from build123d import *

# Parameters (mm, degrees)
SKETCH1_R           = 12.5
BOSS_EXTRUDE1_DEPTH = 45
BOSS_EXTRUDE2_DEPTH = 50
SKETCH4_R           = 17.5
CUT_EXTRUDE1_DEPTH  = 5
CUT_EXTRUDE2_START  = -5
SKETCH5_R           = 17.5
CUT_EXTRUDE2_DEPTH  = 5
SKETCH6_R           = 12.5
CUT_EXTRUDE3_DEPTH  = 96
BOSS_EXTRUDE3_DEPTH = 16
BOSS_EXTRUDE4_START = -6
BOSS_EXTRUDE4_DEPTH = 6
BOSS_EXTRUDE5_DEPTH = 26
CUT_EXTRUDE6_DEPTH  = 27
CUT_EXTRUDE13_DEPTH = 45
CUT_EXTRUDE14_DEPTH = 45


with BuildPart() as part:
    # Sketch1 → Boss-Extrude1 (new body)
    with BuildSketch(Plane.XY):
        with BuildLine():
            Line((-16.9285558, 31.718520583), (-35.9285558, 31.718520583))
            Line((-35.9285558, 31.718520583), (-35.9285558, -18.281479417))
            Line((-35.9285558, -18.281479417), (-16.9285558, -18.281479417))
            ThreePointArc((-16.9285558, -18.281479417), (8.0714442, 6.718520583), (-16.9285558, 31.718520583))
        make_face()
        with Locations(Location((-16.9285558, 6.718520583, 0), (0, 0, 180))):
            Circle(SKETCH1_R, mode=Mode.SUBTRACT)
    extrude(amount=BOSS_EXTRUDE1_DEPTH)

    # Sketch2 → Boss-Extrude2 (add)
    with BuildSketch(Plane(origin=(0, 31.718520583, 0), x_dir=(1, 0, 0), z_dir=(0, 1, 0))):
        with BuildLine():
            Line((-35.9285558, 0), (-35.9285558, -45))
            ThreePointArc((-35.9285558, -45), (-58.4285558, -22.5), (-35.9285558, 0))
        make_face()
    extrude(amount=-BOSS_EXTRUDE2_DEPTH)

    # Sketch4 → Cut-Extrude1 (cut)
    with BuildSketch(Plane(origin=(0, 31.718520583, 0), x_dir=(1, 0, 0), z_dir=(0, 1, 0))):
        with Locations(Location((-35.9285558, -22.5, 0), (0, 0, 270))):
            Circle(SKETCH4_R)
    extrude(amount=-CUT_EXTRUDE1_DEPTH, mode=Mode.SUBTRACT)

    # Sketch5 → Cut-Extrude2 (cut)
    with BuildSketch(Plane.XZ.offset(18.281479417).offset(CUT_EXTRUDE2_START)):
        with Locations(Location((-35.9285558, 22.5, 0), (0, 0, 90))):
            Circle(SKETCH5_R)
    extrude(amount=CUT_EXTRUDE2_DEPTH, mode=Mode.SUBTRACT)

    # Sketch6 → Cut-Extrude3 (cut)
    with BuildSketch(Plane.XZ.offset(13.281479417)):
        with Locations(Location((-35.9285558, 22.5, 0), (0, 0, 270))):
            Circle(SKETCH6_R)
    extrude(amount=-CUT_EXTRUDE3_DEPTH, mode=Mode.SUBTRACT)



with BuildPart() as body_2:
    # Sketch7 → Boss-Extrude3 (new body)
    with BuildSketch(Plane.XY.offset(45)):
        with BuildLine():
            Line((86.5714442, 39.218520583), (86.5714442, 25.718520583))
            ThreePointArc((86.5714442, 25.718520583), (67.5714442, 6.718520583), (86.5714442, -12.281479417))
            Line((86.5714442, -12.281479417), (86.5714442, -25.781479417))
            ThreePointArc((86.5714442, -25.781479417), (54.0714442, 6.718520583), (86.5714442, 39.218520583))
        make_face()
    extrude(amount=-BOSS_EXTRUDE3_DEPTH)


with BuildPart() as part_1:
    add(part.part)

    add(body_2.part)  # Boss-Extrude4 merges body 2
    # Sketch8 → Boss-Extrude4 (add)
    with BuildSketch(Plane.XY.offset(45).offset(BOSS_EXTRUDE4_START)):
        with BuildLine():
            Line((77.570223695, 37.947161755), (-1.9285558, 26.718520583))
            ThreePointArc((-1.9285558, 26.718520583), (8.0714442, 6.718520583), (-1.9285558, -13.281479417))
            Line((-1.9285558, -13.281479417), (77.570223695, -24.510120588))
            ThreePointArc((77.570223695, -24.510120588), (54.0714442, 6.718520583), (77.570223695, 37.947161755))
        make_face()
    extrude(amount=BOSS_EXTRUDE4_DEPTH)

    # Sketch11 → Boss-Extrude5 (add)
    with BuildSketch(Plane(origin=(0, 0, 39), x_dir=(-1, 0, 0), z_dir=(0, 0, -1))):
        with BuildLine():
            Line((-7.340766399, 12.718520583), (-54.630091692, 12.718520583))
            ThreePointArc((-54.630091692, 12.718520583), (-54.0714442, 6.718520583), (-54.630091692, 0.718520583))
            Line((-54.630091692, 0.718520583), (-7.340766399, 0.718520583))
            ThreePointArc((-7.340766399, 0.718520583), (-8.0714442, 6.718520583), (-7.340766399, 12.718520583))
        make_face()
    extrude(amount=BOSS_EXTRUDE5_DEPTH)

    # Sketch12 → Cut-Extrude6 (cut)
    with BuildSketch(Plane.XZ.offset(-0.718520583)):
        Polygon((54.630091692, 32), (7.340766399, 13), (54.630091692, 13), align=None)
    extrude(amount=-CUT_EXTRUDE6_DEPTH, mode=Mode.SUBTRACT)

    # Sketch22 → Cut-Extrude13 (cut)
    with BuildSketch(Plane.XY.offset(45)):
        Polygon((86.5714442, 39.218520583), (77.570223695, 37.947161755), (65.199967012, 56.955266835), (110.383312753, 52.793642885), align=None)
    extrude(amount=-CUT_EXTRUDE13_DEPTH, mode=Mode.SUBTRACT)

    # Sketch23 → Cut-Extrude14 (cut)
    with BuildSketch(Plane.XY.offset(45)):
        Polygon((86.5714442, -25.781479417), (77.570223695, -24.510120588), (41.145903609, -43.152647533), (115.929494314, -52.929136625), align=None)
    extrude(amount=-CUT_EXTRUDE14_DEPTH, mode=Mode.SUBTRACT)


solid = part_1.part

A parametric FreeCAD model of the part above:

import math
import FreeCAD as App
import Part
import Sketcher
from FreeCAD import Vector


def add_polygon(sketch, points):
    """Adds a closed chain of lines whose ends are joined by coincident constraints."""
    first, n = sketch.GeometryCount, len(points)
    for a, b in zip(points, points[1:] + points[:1]):
        sketch.addGeometry(Part.LineSegment(App.Vector(*a, 0), App.Vector(*b, 0)), False)
    for i in range(n):
        sketch.addConstraint(Sketcher.Constraint("Coincident", first + i, 2, first + (i + 1) % n, 1))

doc = App.newDocument("Part")
params = doc.addObject("Spreadsheet::Sheet", "Params")
for row, (alias, value) in enumerate([
    ("sketch1_diameter", "25 mm"),
    ("sketch1_radius", "25 mm"),
    ("sketch1_width", "19 mm"),
    ("pad1_length", "45 mm"),
    ("sketch2_radius", "22.5 mm"),
    ("pad2_length", "50 mm"),
    ("sketch3_diameter", "35 mm"),
    ("pocket1_length", "5 mm"),
    ("sketch4_diameter", "35 mm"),
    ("pocket2_length", "5 mm"),
    ("sketch5_diameter", "25 mm"),
    ("pocket3_length", "96 mm"),
    ("sketch6_radius", "19 mm"),
    ("sketch6_radius2", "32.5 mm"),
    ("pad3_length", "16 mm"),
    ("sketch7_radius", "25 mm"),
    ("sketch7_radius2", "32.5 mm"),
    ("pad4_length", "6 mm"),
    ("sketch8_radius", "25 mm"),
    ("sketch8_radius2", "32.5 mm"),
    ("pad5_length", "26 mm"),
    ("sketch9_height", "19 mm"),
    ("pocket4_length", "27 mm"),
    ("pocket5_length", "45 mm"),
    ("pocket6_length", "45 mm"),
], start=1):
    params.set(f"A{row}", alias)
    params.set(f"B{row}", "=" + value)
    params.setAlias(f"B{row}", alias)

body = doc.addObject("PartDesign::Body", "Body")

# Sketch on XY plane
sketch1 = body.newObject("Sketcher::SketchObject", "Sketch")
sketch1.AttachmentSupport = (doc.getObject("XY_Plane"), [""])
sketch1.MapMode = "FlatFace"
sketch1.addGeometry(Part.LineSegment(Vector(-17, 32, 0), Vector(-36, 32, 0)), False)
sketch1.addGeometry(Part.LineSegment(Vector(-36, 32, 0), Vector(-36, -18, 0)), False)
sketch1.addGeometry(Part.LineSegment(Vector(-36, -18, 0), Vector(-17, -18, 0)), False)
sketch1.addGeometry(Part.ArcOfCircle(Part.Circle(Vector(-17, 7, 0), Vector(0, 0, 1), 25), math.radians(-90), math.radians(90)), False)
sketch1.addGeometry(Part.Circle(Vector(-17, 7, 0), Vector(0, 0, 1), 12), False)
sketch1.addConstraint(Sketcher.Constraint("Coincident", 0, 2, 1, 1))
sketch1.addConstraint(Sketcher.Constraint("Coincident", 1, 2, 2, 1))
sketch1.addConstraint(Sketcher.Constraint("Tangent", 2, 2, 3, 1))
sketch1.addConstraint(Sketcher.Constraint("Tangent", 3, 2, 0, 1))
sketch1.addConstraint(Sketcher.Constraint("Horizontal", 0))
sketch1.addConstraint(Sketcher.Constraint("Vertical", 1))
sketch1.addConstraint(Sketcher.Constraint("Horizontal", 2))
sketch1.addConstraint(Sketcher.Constraint("Coincident", 4, 3, 3, 3))
sketch1.addConstraint(Sketcher.Constraint("Diameter", 4, 25.0))
sketch1.addConstraint(Sketcher.Constraint("Radius", 3, 25.0))
sketch1.addConstraint(Sketcher.Constraint("DistanceX", 0, 2, 0, 1, 19.0))
sketch1.addConstraint(Sketcher.Constraint("DistanceY", -1, 1, 3, 3, 6.718521))
sketch1.addConstraint(Sketcher.Constraint("DistanceX", 3, 3, -1, 1, 16.928556))
sketch1.setExpression("Constraints[8]", "Params.sketch1_diameter")
sketch1.setExpression("Constraints[9]", "Params.sketch1_radius")
sketch1.setExpression("Constraints[10]", "Params.sketch1_width")
pad1 = body.newObject("PartDesign::Pad", "Pad")
pad1.Profile = sketch1
pad1.setExpression("Length", "Params.pad1_length")

# Sketch on XZ plane
sketch2 = body.newObject("Sketcher::SketchObject", "Sketch001")
sketch2.AttachmentSupport = (doc.getObject("XZ_Plane"), [""])
sketch2.MapMode = "FlatFace"
sketch2.AttachmentOffset = App.Placement(Vector(0, 0, -31.718521), App.Rotation())
sketch2.addGeometry(Part.LineSegment(Vector(-36, 45, 0), Vector(-36, 0, 0)), False)
sketch2.addGeometry(Part.ArcOfCircle(Part.Circle(Vector(-36, 22, 0), Vector(0, 0, 1), 22), math.radians(90), math.radians(270)), False)
sketch2.addConstraint(Sketcher.Constraint("Coincident", 0, 1, 1, 1))
sketch2.addConstraint(Sketcher.Constraint("Coincident", 1, 2, 0, 2))
sketch2.addConstraint(Sketcher.Constraint("Vertical", 0))
sketch2.addConstraint(Sketcher.Constraint("PointOnObject", 1, 2, -1))
sketch2.addConstraint(Sketcher.Constraint("Vertical", 1, 3, 0, 1))
sketch2.addConstraint(Sketcher.Constraint("Radius", 1, 22.5))
sketch2.addConstraint(Sketcher.Constraint("DistanceX", 1, 3, -1, 1, 35.928556))
sketch2.setExpression("Constraints[5]", "Params.sketch2_radius")
pad2 = body.newObject("PartDesign::Pad", "Pad001")
pad2.Profile = sketch2
pad2.setExpression("Length", "Params.pad2_length")

# Sketch on XZ plane
sketch3 = body.newObject("Sketcher::SketchObject", "Sketch002")
sketch3.AttachmentSupport = (doc.getObject("XZ_Plane"), [""])
sketch3.MapMode = "FlatFace"
sketch3.AttachmentOffset = App.Placement(Vector(0, 0, -31.718521), App.Rotation())
sketch3.addGeometry(Part.Circle(Vector(-36, 22, 0), Vector(0, 0, 1), 18), False)
sketch3.addConstraint(Sketcher.Constraint("Diameter", 0, 35.0))
sketch3.addConstraint(Sketcher.Constraint("DistanceY", -1, 1, 0, 3, 22.5))
sketch3.addConstraint(Sketcher.Constraint("DistanceX", 0, 3, -1, 1, 35.928556))
sketch3.setExpression("Constraints[0]", "Params.sketch3_diameter")
pocket1 = body.newObject("PartDesign::Pocket", "Pocket")
pocket1.Profile = sketch3
pocket1.setExpression("Length", "Params.pocket1_length")
pocket1.Reversed = True

# Sketch on XZ plane
sketch4 = body.newObject("Sketcher::SketchObject", "Sketch003")
sketch4.AttachmentSupport = (doc.getObject("XZ_Plane"), [""])
sketch4.MapMode = "FlatFace"
sketch4.AttachmentOffset = App.Placement(Vector(0, 0, 13.281479), App.Rotation())
sketch4.addGeometry(Part.Circle(Vector(-36, 22, 0), Vector(0, 0, 1), 18), False)
sketch4.addConstraint(Sketcher.Constraint("Diameter", 0, 35.0))
sketch4.addConstraint(Sketcher.Constraint("DistanceY", -1, 1, 0, 3, 22.5))
sketch4.addConstraint(Sketcher.Constraint("DistanceX", 0, 3, -1, 1, 35.928556))
sketch4.setExpression("Constraints[0]", "Params.sketch4_diameter")
pocket2 = body.newObject("PartDesign::Pocket", "Pocket001")
pocket2.Profile = sketch4
pocket2.setExpression("Length", "Params.pocket2_length")
pocket2.Reversed = True

# Sketch on XZ plane
sketch5 = body.newObject("Sketcher::SketchObject", "Sketch004")
sketch5.AttachmentSupport = (doc.getObject("XZ_Plane"), [""])
sketch5.MapMode = "FlatFace"
sketch5.AttachmentOffset = App.Placement(Vector(0, 0, 13.281479), App.Rotation())
sketch5.addGeometry(Part.Circle(Vector(-36, 22, 0), Vector(0, 0, 1), 12), False)
sketch5.addConstraint(Sketcher.Constraint("Diameter", 0, 25.0))
sketch5.addConstraint(Sketcher.Constraint("DistanceY", -1, 1, 0, 3, 22.5))
sketch5.addConstraint(Sketcher.Constraint("DistanceX", 0, 3, -1, 1, 35.928556))
sketch5.setExpression("Constraints[0]", "Params.sketch5_diameter")
pocket3 = body.newObject("PartDesign::Pocket", "Pocket002")
pocket3.Profile = sketch5
pocket3.setExpression("Length", "Params.pocket3_length")
body2 = doc.addObject("PartDesign::Body", "Body001")

# Sketch on XY plane
sketch6 = body2.newObject("Sketcher::SketchObject", "Sketch005")
sketch6.AttachmentSupport = (doc.getObject("XY_Plane001"), [""])
sketch6.MapMode = "FlatFace"
sketch6.AttachmentOffset = App.Placement(Vector(0, 0, 45), App.Rotation())
sketch6.addGeometry(Part.LineSegment(Vector(87, 26, 0), Vector(87, 39, 0)), False)
sketch6.addGeometry(Part.ArcOfCircle(Part.Circle(Vector(87, 7, 0), Vector(0, 0, 1), 32), math.radians(90), math.radians(270)), False)
sketch6.addGeometry(Part.LineSegment(Vector(87, -26, 0), Vector(87, -12, 0)), False)
sketch6.addGeometry(Part.ArcOfCircle(Part.Circle(Vector(87, 7, 0), Vector(0, 0, 1), 19), math.radians(90), math.radians(270)), False)
sketch6.addConstraint(Sketcher.Constraint("Coincident", 0, 2, 1, 1))
sketch6.addConstraint(Sketcher.Constraint("Coincident", 1, 2, 2, 1))
sketch6.addConstraint(Sketcher.Constraint("Coincident", 2, 2, 3, 2))
sketch6.addConstraint(Sketcher.Constraint("Coincident", 3, 1, 0, 1))
sketch6.addConstraint(Sketcher.Constraint("Vertical", 0))
sketch6.addConstraint(Sketcher.Constraint("Vertical", 2))
sketch6.addConstraint(Sketcher.Constraint("Coincident", 3, 3, 1, 3))
sketch6.addConstraint(Sketcher.Constraint("Vertical", 3, 3, 0, 2))
sketch6.addConstraint(Sketcher.Constraint("Vertical", 0, 2, 1, 2))
sketch6.addConstraint(Sketcher.Constraint("Radius", 3, 19.0))
sketch6.addConstraint(Sketcher.Constraint("Radius", 1, 32.5))
sketch6.addConstraint(Sketcher.Constraint("DistanceY", -1, 1, 1, 3, 6.718521))
sketch6.addConstraint(Sketcher.Constraint("DistanceX", -1, 1, 1, 3, 86.571444))
sketch6.setExpression("Constraints[9]", "Params.sketch6_radius")
sketch6.setExpression("Constraints[10]", "Params.sketch6_radius2")
pad3 = body2.newObject("PartDesign::Pad", "Pad002")
pad3.Profile = sketch6
pad3.setExpression("Length", "Params.pad3_length")
pad3.Reversed = True
body.AllowCompound = True
doc.recompute()

boolean = body.newObject("PartDesign::Boolean", "Boolean")
boolean.Type = "Fuse"
boolean.addObjects([body2])

# Sketch on XY plane
sketch7 = body.newObject("Sketcher::SketchObject", "Sketch006")
sketch7.AttachmentSupport = (doc.getObject("XY_Plane"), [""])
sketch7.MapMode = "FlatFace"
sketch7.AttachmentOffset = App.Placement(Vector(0, 0, 39), App.Rotation())
sketch7.addGeometry(Part.LineSegment(Vector(78, 38, 0), Vector(-2, 27, 0)), False)
sketch7.addGeometry(Part.ArcOfCircle(Part.Circle(Vector(-17, 7, 0), Vector(0, 0, 1), 25), math.radians(-53), math.radians(53)), False)
sketch7.addGeometry(Part.LineSegment(Vector(-2, -13, 0), Vector(78, -25, 0)), False)
sketch7.addGeometry(Part.ArcOfCircle(Part.Circle(Vector(87, 7, 0), Vector(0, 0, 1), 32), math.radians(106), math.radians(254)), False)
sketch7.addConstraint(Sketcher.Constraint("Coincident", 0, 2, 1, 2))
sketch7.addConstraint(Sketcher.Constraint("Coincident", 1, 1, 2, 1))
sketch7.addConstraint(Sketcher.Constraint("Coincident", 2, 2, 3, 2))
sketch7.addConstraint(Sketcher.Constraint("Coincident", 3, 1, 0, 1))
sketch7.addConstraint(Sketcher.Constraint("Horizontal", 1, 3, 3, 3))
sketch7.addConstraint(Sketcher.Constraint("Vertical", 0, 2, 1, 1))
sketch7.addConstraint(Sketcher.Constraint("Vertical", 2, 2, 3, 1))
sketch7.addConstraint(Sketcher.Constraint("Radius", 1, 25.0))
sketch7.addConstraint(Sketcher.Constraint("Radius", 3, 32.5))
sketch7.addConstraint(Sketcher.Constraint("DistanceX", 1, 3, 0, 2, 15.0))
sketch7.addConstraint(Sketcher.Constraint("DistanceX", 1, 3, 3, 3, 103.5))
sketch7.addConstraint(Sketcher.Constraint("DistanceY", -1, 1, 1, 3, 6.718521))
sketch7.addConstraint(Sketcher.Constraint("DistanceY", 2, 2, -1, 1, 24.510121))
sketch7.addConstraint(Sketcher.Constraint("DistanceX", 1, 3, -1, 1, 16.928556))
sketch7.setExpression("Constraints[7]", "Params.sketch7_radius")
sketch7.setExpression("Constraints[8]", "Params.sketch7_radius2")
pad4 = body.newObject("PartDesign::Pad", "Pad003")
pad4.Profile = sketch7
pad4.setExpression("Length", "Params.pad4_length")

# Sketch on XY plane
sketch8 = body.newObject("Sketcher::SketchObject", "Sketch007")
sketch8.AttachmentSupport = (doc.getObject("XY_Plane"), [""])
sketch8.MapMode = "FlatFace"
sketch8.AttachmentOffset = App.Placement(Vector(0, 0, 39), App.Rotation())
sketch8.addGeometry(Part.LineSegment(Vector(7, 13, 0), Vector(55, 13, 0)), False)
sketch8.addGeometry(Part.ArcOfCircle(Part.Circle(Vector(87, 7, 0), Vector(0, 0, 1), 33), math.radians(169), math.radians(191)), False)
sketch8.addGeometry(Part.LineSegment(Vector(55, 1, 0), Vector(7, 1, 0)), False)
sketch8.addGeometry(Part.ArcOfCircle(Part.Circle(Vector(-17, 7, 0), Vector(0, 0, 1), 25), math.radians(-14), math.radians(14)), False)
sketch8.addConstraint(Sketcher.Constraint("Coincident", 0, 2, 1, 1))
sketch8.addConstraint(Sketcher.Constraint("Coincident", 1, 2, 2, 1))
sketch8.addConstraint(Sketcher.Constraint("Coincident", 2, 2, 3, 1))
sketch8.addConstraint(Sketcher.Constraint("Coincident", 3, 2, 0, 1))
sketch8.addConstraint(Sketcher.Constraint("Horizontal", 0))
sketch8.addConstraint(Sketcher.Constraint("Horizontal", 2))
sketch8.addConstraint(Sketcher.Constraint("Horizontal", 1, 3, 3, 3))
sketch8.addConstraint(Sketcher.Constraint("Vertical", 0, 2, 1, 2))
sketch8.addConstraint(Sketcher.Constraint("Radius", 3, 25.0))
sketch8.addConstraint(Sketcher.Constraint("Radius", 1, 32.5))
sketch8.addConstraint(Sketcher.Constraint("DistanceY", 1, 3, 0, 2, 6.0))
sketch8.addConstraint(Sketcher.Constraint("DistanceX", 3, 3, 1, 3, 103.5))
sketch8.addConstraint(Sketcher.Constraint("DistanceY", -1, 1, 1, 3, 6.718521))
sketch8.addConstraint(Sketcher.Constraint("DistanceX", -1, 1, 0, 2, 54.630092))
sketch8.setExpression("Constraints[8]", "Params.sketch8_radius")
sketch8.setExpression("Constraints[9]", "Params.sketch8_radius2")
pad5 = body.newObject("PartDesign::Pad", "Pad004")
pad5.Profile = sketch8
pad5.setExpression("Length", "Params.pad5_length")
pad5.Reversed = True

# Sketch on XZ plane
sketch9 = body.newObject("Sketcher::SketchObject", "Sketch008")
sketch9.AttachmentSupport = (doc.getObject("XZ_Plane"), [""])
sketch9.MapMode = "FlatFace"
sketch9.AttachmentOffset = App.Placement(Vector(0, 0, -0.718521), App.Rotation())
add_polygon(sketch9, [(55, 32), (7, 13), (55, 13)])  # lines 0-2
sketch9.addConstraint(Sketcher.Constraint("Horizontal", 1))
sketch9.addConstraint(Sketcher.Constraint("Vertical", 2))
sketch9.addConstraint(Sketcher.Constraint("DistanceY", 2, 1, 2, 2, 19.0))
sketch9.addConstraint(Sketcher.Constraint("DistanceY", -1, 1, 0, 2, 13.0))
sketch9.addConstraint(Sketcher.Constraint("Distance", 0, 50.963519))
sketch9.addConstraint(Sketcher.Constraint("DistanceX", -1, 1, 1, 2, 54.630092))
sketch9.setExpression("Constraints[5]", "Params.sketch9_height")
pocket4 = body.newObject("PartDesign::Pocket", "Pocket003")
pocket4.Profile = sketch9
pocket4.setExpression("Length", "Params.pocket4_length")

# Sketch on XY plane
sketch10 = body.newObject("Sketcher::SketchObject", "Sketch009")
sketch10.AttachmentSupport = (doc.getObject("XY_Plane"), [""])
sketch10.MapMode = "FlatFace"
sketch10.AttachmentOffset = App.Placement(Vector(0, 0, 45), App.Rotation())
add_polygon(sketch10, [(78, 38), (87, 39), (110, 53), (65, 57)])  # lines 0-3
sketch10.addConstraint(Sketcher.Constraint("DistanceY", -1, 1, 0, 2, 39.218521))
sketch10.addConstraint(Sketcher.Constraint("DistanceY", -1, 1, 3, 2, 37.947162))
sketch10.addConstraint(Sketcher.Constraint("DistanceX", 0, 2, 1, 2, 23.811869))
sketch10.addConstraint(Sketcher.Constraint("DistanceX", 3, 2, 0, 2, 9.001221))
sketch10.addConstraint(Sketcher.Constraint("DistanceY", 3, 2, 1, 2, 14.846481))
sketch10.addConstraint(Sketcher.Constraint("Distance", 2, 45.374595))
sketch10.addConstraint(Sketcher.Constraint("Distance", 3, 22.678874))
sketch10.addConstraint(Sketcher.Constraint("DistanceX", -1, 1, 0, 2, 86.571444))
pocket5 = body.newObject("PartDesign::Pocket", "Pocket004")
pocket5.Profile = sketch10
pocket5.setExpression("Length", "Params.pocket5_length")

# Sketch on XY plane
sketch11 = body.newObject("Sketcher::SketchObject", "Sketch010")
sketch11.AttachmentSupport = (doc.getObject("XY_Plane"), [""])
sketch11.MapMode = "FlatFace"
sketch11.AttachmentOffset = App.Placement(Vector(0, 0, 45), App.Rotation())
add_polygon(sketch11, [(87, -26), (78, -25), (41, -43), (116, -53)])  # lines 0-3
sketch11.addConstraint(Sketcher.Constraint("DistanceY", 0, 2, -1, 1, 24.510121))
sketch11.addConstraint(Sketcher.Constraint("DistanceY", 3, 2, -1, 1, 25.781479))
sketch11.addConstraint(Sketcher.Constraint("DistanceX", 1, 2, 0, 2, 36.42432))
sketch11.addConstraint(Sketcher.Constraint("DistanceX", 0, 2, 2, 2, 38.359271))
sketch11.addConstraint(Sketcher.Constraint("DistanceY", 2, 2, 1, 2, 9.776489))
sketch11.addConstraint(Sketcher.Constraint("DistanceX", 0, 2, 3, 2, 9.001221))
sketch11.addConstraint(Sketcher.Constraint("DistanceY", 1, 2, 3, 2, 17.371168))
sketch11.addConstraint(Sketcher.Constraint("DistanceX", -1, 1, 0, 2, 77.570224))
pocket6 = body.newObject("PartDesign::Pocket", "Pocket005")
pocket6.Profile = sketch11
pocket6.setExpression("Length", "Params.pocket6_length")

doc.recompute()
